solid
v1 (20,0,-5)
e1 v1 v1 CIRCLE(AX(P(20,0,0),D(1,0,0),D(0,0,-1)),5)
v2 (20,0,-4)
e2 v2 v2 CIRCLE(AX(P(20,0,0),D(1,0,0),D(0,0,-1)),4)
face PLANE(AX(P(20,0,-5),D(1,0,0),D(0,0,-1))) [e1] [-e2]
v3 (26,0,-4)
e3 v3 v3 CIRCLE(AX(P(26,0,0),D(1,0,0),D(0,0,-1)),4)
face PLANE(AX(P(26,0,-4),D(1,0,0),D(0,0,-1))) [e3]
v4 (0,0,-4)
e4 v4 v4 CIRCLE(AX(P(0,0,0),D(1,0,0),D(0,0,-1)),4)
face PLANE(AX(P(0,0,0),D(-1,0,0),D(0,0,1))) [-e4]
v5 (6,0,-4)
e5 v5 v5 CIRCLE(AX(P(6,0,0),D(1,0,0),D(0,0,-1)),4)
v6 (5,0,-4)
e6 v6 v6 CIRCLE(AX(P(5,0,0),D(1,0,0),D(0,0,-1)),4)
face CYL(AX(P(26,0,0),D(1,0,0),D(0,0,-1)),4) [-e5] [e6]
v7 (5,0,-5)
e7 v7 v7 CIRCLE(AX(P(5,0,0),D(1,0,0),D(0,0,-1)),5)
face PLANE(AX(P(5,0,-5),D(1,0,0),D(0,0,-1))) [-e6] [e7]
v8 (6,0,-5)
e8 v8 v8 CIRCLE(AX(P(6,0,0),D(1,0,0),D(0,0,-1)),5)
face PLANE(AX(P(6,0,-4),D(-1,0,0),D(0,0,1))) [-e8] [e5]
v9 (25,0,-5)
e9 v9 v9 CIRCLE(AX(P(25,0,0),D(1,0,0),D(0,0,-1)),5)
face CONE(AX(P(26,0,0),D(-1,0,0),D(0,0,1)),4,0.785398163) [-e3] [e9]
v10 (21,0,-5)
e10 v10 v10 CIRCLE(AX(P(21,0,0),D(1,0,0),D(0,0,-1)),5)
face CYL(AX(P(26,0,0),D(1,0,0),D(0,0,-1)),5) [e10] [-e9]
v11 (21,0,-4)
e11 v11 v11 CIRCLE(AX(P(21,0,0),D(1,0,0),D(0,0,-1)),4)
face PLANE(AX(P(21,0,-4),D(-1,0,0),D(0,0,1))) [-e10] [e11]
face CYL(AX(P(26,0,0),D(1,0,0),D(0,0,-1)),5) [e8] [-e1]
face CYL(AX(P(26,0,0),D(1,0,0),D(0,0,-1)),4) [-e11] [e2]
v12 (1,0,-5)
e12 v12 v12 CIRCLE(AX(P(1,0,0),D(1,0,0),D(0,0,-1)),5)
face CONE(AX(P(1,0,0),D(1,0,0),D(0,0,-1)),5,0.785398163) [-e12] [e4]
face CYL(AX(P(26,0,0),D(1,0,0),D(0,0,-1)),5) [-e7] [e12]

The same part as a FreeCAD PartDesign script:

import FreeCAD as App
import Part
import Sketcher

V = App.Vector

doc = App.newDocument("Part")
body = doc.addObject("PartDesign::Body", "Body")

sketch1 = doc.addObject("Sketcher::SketchObject", "Sketch")
body.addObject(sketch1)
sketch1.AttachmentSupport = (doc.XZ_Plane, [""])
sketch1.MapMode = "FlatFace"
sketch1.addGeometry(Part.LineSegment(V(0, -4, 0), V(0, 0, 0)), False)
sketch1.addGeometry(Part.LineSegment(V(0, 0, 0), V(26, 0, 0)), False)
sketch1.addGeometry(Part.LineSegment(V(26, 0, 0), V(26, -4, 0)), False)
sketch1.addGeometry(Part.LineSegment(V(26, -4, 0), V(25, -5, 0)), False)
sketch1.addGeometry(Part.LineSegment(V(25, -5, 0), V(21, -5, 0)), False)
sketch1.addGeometry(Part.LineSegment(V(21, -5, 0), V(21, -4, 0)), False)
sketch1.addGeometry(Part.LineSegment(V(21, -4, 0), V(20, -4, 0)), False)
sketch1.addGeometry(Part.LineSegment(V(20, -4, 0), V(20, -5, 0)), False)
sketch1.addGeometry(Part.LineSegment(V(20, -5, 0), V(6, -5, 0)), False)
sketch1.addGeometry(Part.LineSegment(V(6, -5, 0), V(6, -4, 0)), False)
sketch1.addGeometry(Part.LineSegment(V(6, -4, 0), V(5, -4, 0)), False)
sketch1.addGeometry(Part.LineSegment(V(5, -4, 0), V(5, -5, 0)), False)
sketch1.addGeometry(Part.LineSegment(V(5, -5, 0), V(1, -5, 0)), False)
sketch1.addGeometry(Part.LineSegment(V(1, -5, 0), V(0, -4, 0)), False)
sketch1.addConstraint(Sketcher.Constraint("Coincident", 0, 2, 1, 1))
sketch1.addConstraint(Sketcher.Constraint("Coincident", 1, 2, 2, 1))
sketch1.addConstraint(Sketcher.Constraint("Coincident", 2, 2, 3, 1))
sketch1.addConstraint(Sketcher.Constraint("Coincident", 3, 2, 4, 1))
sketch1.addConstraint(Sketcher.Constraint("Coincident", 4, 2, 5, 1))
sketch1.addConstraint(Sketcher.Constraint("Coincident", 5, 2, 6, 1))
sketch1.addConstraint(Sketcher.Constraint("Coincident", 6, 2, 7, 1))
sketch1.addConstraint(Sketcher.Constraint("Coincident", 7, 2, 8, 1))
sketch1.addConstraint(Sketcher.Constraint("Coincident", 8, 2, 9, 1))
sketch1.addConstraint(Sketcher.Constraint("Coincident", 9, 2, 10, 1))
sketch1.addConstraint(Sketcher.Constraint("Coincident", 10, 2, 11, 1))
sketch1.addConstraint(Sketcher.Constraint("Coincident", 11, 2, 12, 1))
sketch1.addConstraint(Sketcher.Constraint("Coincident", 12, 2, 13, 1))
sketch1.addConstraint(Sketcher.Constraint("Coincident", 13, 2, 0, 1))
sketch1.addConstraint(Sketcher.Constraint("Vertical", 0))
sketch1.addConstraint(Sketcher.Constraint("Horizontal", 1))
sketch1.addConstraint(Sketcher.Constraint("Vertical", 2))
sketch1.addConstraint(Sketcher.Constraint("Horizontal", 4))
sketch1.addConstraint(Sketcher.Constraint("Vertical", 5))
sketch1.addConstraint(Sketcher.Constraint("Horizontal", 6))
sketch1.addConstraint(Sketcher.Constraint("Vertical", 7))
sketch1.addConstraint(Sketcher.Constraint("Horizontal", 8))
sketch1.addConstraint(Sketcher.Constraint("Vertical", 9))
sketch1.addConstraint(Sketcher.Constraint("Horizontal", 10))
sketch1.addConstraint(Sketcher.Constraint("Vertical", 11))
sketch1.addConstraint(Sketcher.Constraint("Horizontal", 12))
sketch1.addConstraint(Sketcher.Constraint("Coincident", 0, 2, -1, 1))
sketch1.addConstraint(Sketcher.Constraint("Perpendicular", 3, 13))
sketch1.addConstraint(Sketcher.Constraint("Horizontal", 2, 2, 5, 2))
sketch1.addConstraint(Sketcher.Constraint("Horizontal", 4, 2, 7, 2))
sketch1.addConstraint(Sketcher.Constraint("Horizontal", 6, 2, 9, 2))
sketch1.addConstraint(Sketcher.Constraint("Horizontal", 8, 2, 11, 2))
sketch1.addConstraint(Sketcher.Constraint("Horizontal", 10, 2, 13, 2))
sketch1.addConstraint(Sketcher.Constraint("Equal", 6, 10))
sketch1.addConstraint(Sketcher.Constraint("Equal", 4, 12))
sketch1.addConstraint(Sketcher.Constraint("Equal", 12, 0))
sketch1.addConstraint(Sketcher.Constraint("Equal", 10, 5))
sketch1.addConstraint(Sketcher.Constraint("Equal", 3, 13))
sketch1.addConstraint(Sketcher.Constraint("DistanceX", 1, 1, 1, 2, 26.0))
sketch1.addConstraint(Sketcher.Constraint("DistanceX", 4, 2, 4, 1, 4.0))
sketch1.addConstraint(Sketcher.Constraint("DistanceX", 6, 2, 6, 1, 1.0))
revolution = doc.addObject("PartDesign::Revolution", "Revolution")
body.addObject(revolution)
revolution.Profile = sketch1
revolution.ReferenceAxis = (sketch1, ["H_Axis"])
revolution.Angle = 360

doc.recompute()
